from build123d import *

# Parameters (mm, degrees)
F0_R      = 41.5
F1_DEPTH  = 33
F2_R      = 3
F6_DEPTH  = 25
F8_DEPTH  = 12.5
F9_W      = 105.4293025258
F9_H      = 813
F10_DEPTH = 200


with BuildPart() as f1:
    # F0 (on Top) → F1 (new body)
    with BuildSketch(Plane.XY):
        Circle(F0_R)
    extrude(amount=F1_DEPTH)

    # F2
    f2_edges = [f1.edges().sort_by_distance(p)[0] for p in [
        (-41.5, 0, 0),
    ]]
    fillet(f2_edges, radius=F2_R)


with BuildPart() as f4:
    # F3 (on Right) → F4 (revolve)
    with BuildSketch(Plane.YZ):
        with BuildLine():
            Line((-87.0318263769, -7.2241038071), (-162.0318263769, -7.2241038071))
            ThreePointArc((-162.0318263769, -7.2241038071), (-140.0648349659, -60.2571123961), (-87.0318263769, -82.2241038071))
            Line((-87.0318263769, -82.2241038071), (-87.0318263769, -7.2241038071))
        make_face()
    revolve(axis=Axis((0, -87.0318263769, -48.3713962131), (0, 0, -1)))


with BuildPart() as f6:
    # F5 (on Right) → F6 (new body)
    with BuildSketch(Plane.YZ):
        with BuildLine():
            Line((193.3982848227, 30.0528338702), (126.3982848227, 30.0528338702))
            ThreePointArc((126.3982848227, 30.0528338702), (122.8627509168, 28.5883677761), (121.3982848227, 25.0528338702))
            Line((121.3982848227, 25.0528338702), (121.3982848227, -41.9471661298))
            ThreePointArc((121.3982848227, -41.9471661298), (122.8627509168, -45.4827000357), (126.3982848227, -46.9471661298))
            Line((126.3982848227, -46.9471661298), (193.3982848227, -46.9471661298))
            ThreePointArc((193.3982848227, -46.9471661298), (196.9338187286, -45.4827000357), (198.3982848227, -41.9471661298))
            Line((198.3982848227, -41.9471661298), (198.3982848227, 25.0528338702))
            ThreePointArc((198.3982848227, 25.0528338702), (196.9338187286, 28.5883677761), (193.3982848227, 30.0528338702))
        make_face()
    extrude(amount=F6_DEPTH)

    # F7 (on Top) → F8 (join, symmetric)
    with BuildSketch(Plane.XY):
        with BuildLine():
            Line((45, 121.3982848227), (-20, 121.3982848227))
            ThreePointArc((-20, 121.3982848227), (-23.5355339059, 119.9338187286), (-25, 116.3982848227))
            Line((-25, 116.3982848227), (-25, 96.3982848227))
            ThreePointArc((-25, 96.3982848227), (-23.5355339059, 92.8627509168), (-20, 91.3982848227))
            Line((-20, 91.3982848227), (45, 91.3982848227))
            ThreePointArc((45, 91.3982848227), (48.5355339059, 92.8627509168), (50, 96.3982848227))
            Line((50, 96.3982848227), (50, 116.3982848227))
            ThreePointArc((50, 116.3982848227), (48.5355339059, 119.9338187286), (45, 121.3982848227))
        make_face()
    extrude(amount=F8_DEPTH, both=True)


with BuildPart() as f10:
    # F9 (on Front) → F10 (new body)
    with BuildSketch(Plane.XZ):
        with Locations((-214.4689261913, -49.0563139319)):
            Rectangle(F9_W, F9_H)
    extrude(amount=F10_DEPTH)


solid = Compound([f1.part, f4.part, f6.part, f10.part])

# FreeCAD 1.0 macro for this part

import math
import FreeCAD as App
import Part
import Sketcher
Q = App.Units.Quantity


def edges_at(feature, points):
    """Names of the edges that pass closest to the given points."""
    edges = feature.Shape.Edges
    near = lambda p: min(range(len(edges)), key=lambda i: edges[i].distToShape(Part.Vertex(*p))[0])
    return sorted({f"Edge{near(p) + 1}" for p in points})

doc = App.newDocument("Part")
body = doc.addObject("PartDesign::Body", "Body")

# Sketch on XY plane
sketch1 = body.newObject("Sketcher::SketchObject", "Sketch")
sketch1.AttachmentSupport = (doc.getObject("XY_Plane"), [""])
sketch1.MapMode = "FlatFace"
sketch1.addGeometry(Part.Circle(App.Vector(0, 0, 0), App.Vector(0, 0, 1), 41.5), False)
sketch1.addConstraint([
    Sketcher.Constraint("Coincident", 0, 3, -1, 1),
    Sketcher.Constraint("Diameter", 0, Q("83 mm")),
])
pad1 = body.newObject("PartDesign::Pad", "Pad")
pad1.Profile = sketch1
pad1.Length = 33
doc.recompute()

fillet = body.newObject("PartDesign::Fillet", "Fillet")
fillet.Base = (pad1, edges_at(pad1, [(-41.5, 0, 0)]))
fillet.Radius = 3
body2 = doc.addObject("PartDesign::Body", "Body001")

# Sketch on YZ plane
sketch2 = body2.newObject("Sketcher::SketchObject", "Sketch001")
sketch2.AttachmentSupport = (doc.getObject("YZ_Plane001"), [""])
sketch2.MapMode = "FlatFace"
sketch2.addGeometry([
    Part.LineSegment(App.Vector(-87.031826, -7.224104, 0), App.Vector(-162.031826, -7.224104, 0)),
    Part.ArcOfCircle(Part.Circle(App.Vector(-87.031826, -7.224104, 0), App.Vector(0, 0, 1), 75), math.radians(180), math.radians(270)),
    Part.LineSegment(App.Vector(-87.031826, -82.224104, 0), App.Vector(-87.031826, -7.224104, 0)),
], False)
sketch2.addGeometry(Part.LineSegment(App.Vector(-87.031826, -7.224104, 0), App.Vector(-87.031826, -82.224104, 0)), True)  # axis
sketch2.addConstraint([
    Sketcher.Constraint("Coincident", 0, 2, 1, 1),
    Sketcher.Constraint("Coincident", 1, 2, 2, 1),
    Sketcher.Constraint("Coincident", 2, 2, 0, 1),
    Sketcher.Constraint("Horizontal", 0),
    Sketcher.Constraint("Vertical", 2),
    Sketcher.Constraint("Vertical", 3),
    Sketcher.Constraint("Coincident", 2, 2, 1, 3),
    Sketcher.Constraint("Coincident", 3, 1, 1, 3),
    Sketcher.Constraint("Equal", 2, 3),
    Sketcher.Constraint("Radius", 1, Q("75 mm")),
    Sketcher.Constraint("DistanceX", 1, 3, -1, 1, Q("87.031826 mm")),
    Sketcher.Constraint("DistanceY", 1, 3, -1, 1, Q("7.224104 mm")),
])
revolution = body2.newObject("PartDesign::Revolution", "Revolution")
revolution.Profile = sketch2
revolution.ReferenceAxis = (sketch2, ["Axis0"])
revolution.Angle = 360
body3 = doc.addObject("PartDesign::Body", "Body002")

# Sketch on YZ plane
sketch3 = body3.newObject("Sketcher::SketchObject", "Sketch002")
sketch3.AttachmentSupport = (doc.getObject("YZ_Plane002"), [""])
sketch3.MapMode = "FlatFace"
sketch3.addGeometry([
    Part.LineSegment(App.Vector(193.398285, 30.052834, 0), App.Vector(126.398285, 30.052834, 0)),  # 0
    Part.ArcOfCircle(Part.Circle(App.Vector(126.398285, 25.052834, 0), App.Vector(0, 0, 1), 5), math.radians(90), math.radians(180)),  # 1
    Part.LineSegment(App.Vector(121.398285, 25.052834, 0), App.Vector(121.398285, -41.947166, 0)),  # 2
    Part.ArcOfCircle(Part.Circle(App.Vector(126.398285, -41.947166, 0), App.Vector(0, 0, 1), 5), math.radians(180), math.radians(270)),  # 3
    Part.LineSegment(App.Vector(126.398285, -46.947166, 0), App.Vector(193.398285, -46.947166, 0)),  # 4
    Part.ArcOfCircle(Part.Circle(App.Vector(193.398285, -41.947166, 0), App.Vector(0, 0, 1), 5), math.radians(-90), math.radians(0)),  # 5
    Part.LineSegment(App.Vector(198.398285, -41.947166, 0), App.Vector(198.398285, 25.052834, 0)),  # 6
    Part.ArcOfCircle(Part.Circle(App.Vector(193.398285, 25.052834, 0), App.Vector(0, 0, 1), 5), math.radians(0), math.radians(90)),  # 7
], False)
sketch3.addConstraint([
    Sketcher.Constraint("Tangent", 0, 2, 1, 1),
    Sketcher.Constraint("Tangent", 1, 2, 2, 1),
    Sketcher.Constraint("Tangent", 2, 2, 3, 1),
    Sketcher.Constraint("Tangent", 3, 2, 4, 1),
    Sketcher.Constraint("Tangent", 4, 2, 5, 1),
    Sketcher.Constraint("Tangent", 5, 2, 6, 1),
    Sketcher.Constraint("Tangent", 6, 2, 7, 1),
    Sketcher.Constraint("Tangent", 7, 2, 0, 1),
    Sketcher.Constraint("Horizontal", 0),
    Sketcher.Constraint("Vertical", 2),
    Sketcher.Constraint("Horizontal", 4),
    Sketcher.Constraint("Vertical", 6),
    Sketcher.Constraint("Equal", 1, 3),
    Sketcher.Constraint("Equal", 3, 5),
    Sketcher.Constraint("Equal", 5, 7),
    Sketcher.Constraint("Equal", 4, 2),
    Sketcher.Constraint("Radius", 1, Q("5 mm")),
    Sketcher.Constraint("DistanceX", 0, 2, 0, 1, Q("67 mm")),
    Sketcher.Constraint("DistanceX", -1, 1, 1, 3, Q("126.398285 mm")),
    Sketcher.Constraint("DistanceY", -1, 1, 1, 3, Q("25.052834 mm")),
])
pad2 = body3.newObject("PartDesign::Pad", "Pad001")
pad2.Profile = sketch3
pad2.Length = 25

# Sketch on XY plane
sketch4 = body3.newObject("Sketcher::SketchObject", "Sketch003")
sketch4.AttachmentSupport = (doc.getObject("XY_Plane002"), [""])
sketch4.MapMode = "FlatFace"
sketch4.addGeometry([
    Part.LineSegment(App.Vector(45, 121.398285, 0), App.Vector(-20, 121.398285, 0)),  # 0
    Part.ArcOfCircle(Part.Circle(App.Vector(-20, 116.398285, 0), App.Vector(0, 0, 1), 5), math.radians(90), math.radians(180)),  # 1
    Part.LineSegment(App.Vector(-25, 116.398285, 0), App.Vector(-25, 96.398285, 0)),  # 2
    Part.ArcOfCircle(Part.Circle(App.Vector(-20, 96.398285, 0), App.Vector(0, 0, 1), 5), math.radians(180), math.radians(270)),  # 3
    Part.LineSegment(App.Vector(-20, 91.398285, 0), App.Vector(45, 91.398285, 0)),  # 4
    Part.ArcOfCircle(Part.Circle(App.Vector(45, 96.398285, 0), App.Vector(0, 0, 1), 5), math.radians(-90), math.radians(0)),  # 5
    Part.LineSegment(App.Vector(50, 96.398285, 0), App.Vector(50, 116.398285, 0)),  # 6
    Part.ArcOfCircle(Part.Circle(App.Vector(45, 116.398285, 0), App.Vector(0, 0, 1), 5), math.radians(0), math.radians(90)),  # 7
], False)
sketch4.addConstraint([
    Sketcher.Constraint("Tangent", 0, 2, 1, 1),
    Sketcher.Constraint("Tangent", 1, 2, 2, 1),
    Sketcher.Constraint("Tangent", 2, 2, 3, 1),
    Sketcher.Constraint("Tangent", 3, 2, 4, 1),
    Sketcher.Constraint("Tangent", 4, 2, 5, 1),
    Sketcher.Constraint("Tangent", 5, 2, 6, 1),
    Sketcher.Constraint("Tangent", 6, 2, 7, 1),
    Sketcher.Constraint("Tangent", 7, 2, 0, 1),
    Sketcher.Constraint("Horizontal", 0),
    Sketcher.Constraint("Vertical", 2),
    Sketcher.Constraint("Horizontal", 4),
    Sketcher.Constraint("Vertical", 6),
    Sketcher.Constraint("Equal", 1, 3),
    Sketcher.Constraint("Equal", 3, 5),
    Sketcher.Constraint("Equal", 5, 7),
    Sketcher.Constraint("Radius", 1, Q("5 mm")),
    Sketcher.Constraint("DistanceX", 0, 2, 0, 1, Q("65 mm")),
    Sketcher.Constraint("DistanceY", 2, 2, 2, 1, Q("20 mm")),
    Sketcher.Constraint("DistanceX", 1, 3, -1, 1, Q("20 mm")),
    Sketcher.Constraint("DistanceY", -1, 1, 1, 3, Q("116.398285 mm")),
])
pad3 = body3.newObject("PartDesign::Pad", "Pad002")
pad3.Profile = sketch4
pad3.Length = 25
pad3.Midplane = True
body4 = doc.addObject("PartDesign::Body", "Body003")

# Sketch on XZ plane
sketch5 = body4.newObject("Sketcher::SketchObject", "Sketch004")
sketch5.AttachmentSupport = (doc.getObject("XZ_Plane003"), [""])
sketch5.MapMode = "FlatFace"
sketch5.addGeometry([
    Part.LineSegment(App.Vector(-267.183577, 357.443686, 0), App.Vector(-267.183577, -455.556314, 0)),
    Part.LineSegment(App.Vector(-267.183577, -455.556314, 0), App.Vector(-161.754275, -455.556314, 0)),
    Part.LineSegment(App.Vector(-161.754275, -455.556314, 0), App.Vector(-161.754275, 357.443686, 0)),
    Part.LineSegment(App.Vector(-161.754275, 357.443686, 0), App.Vector(-267.183577, 357.443686, 0)),
], False)
sketch5.addConstraint([
    Sketcher.Constraint("Coincident", 0, 2, 1, 1),
    Sketcher.Constraint("Coincident", 1, 2, 2, 1),
    Sketcher.Constraint("Coincident", 2, 2, 3, 1),
    Sketcher.Constraint("Coincident", 3, 2, 0, 1),
    Sketcher.Constraint("Vertical", 0),
    Sketcher.Constraint("Horizontal", 1),
    Sketcher.Constraint("Vertical", 2),
    Sketcher.Constraint("Horizontal", 3),
    Sketcher.Constraint("DistanceY", 0, 2, 0, 1, Q("813 mm")),
    Sketcher.Constraint("DistanceX", 1, 1, 1, 2, Q("105.429303 mm")),
    Sketcher.Constraint("DistanceX", 0, 2, -1, 1, Q("267.183577 mm")),
    Sketcher.Constraint("DistanceY", 0, 2, -1, 1, Q("455.556314 mm")),
])
pad4 = body4.newObject("PartDesign::Pad", "Pad003")
pad4.Profile = sketch5
pad4.Length = 200

doc.recompute()
